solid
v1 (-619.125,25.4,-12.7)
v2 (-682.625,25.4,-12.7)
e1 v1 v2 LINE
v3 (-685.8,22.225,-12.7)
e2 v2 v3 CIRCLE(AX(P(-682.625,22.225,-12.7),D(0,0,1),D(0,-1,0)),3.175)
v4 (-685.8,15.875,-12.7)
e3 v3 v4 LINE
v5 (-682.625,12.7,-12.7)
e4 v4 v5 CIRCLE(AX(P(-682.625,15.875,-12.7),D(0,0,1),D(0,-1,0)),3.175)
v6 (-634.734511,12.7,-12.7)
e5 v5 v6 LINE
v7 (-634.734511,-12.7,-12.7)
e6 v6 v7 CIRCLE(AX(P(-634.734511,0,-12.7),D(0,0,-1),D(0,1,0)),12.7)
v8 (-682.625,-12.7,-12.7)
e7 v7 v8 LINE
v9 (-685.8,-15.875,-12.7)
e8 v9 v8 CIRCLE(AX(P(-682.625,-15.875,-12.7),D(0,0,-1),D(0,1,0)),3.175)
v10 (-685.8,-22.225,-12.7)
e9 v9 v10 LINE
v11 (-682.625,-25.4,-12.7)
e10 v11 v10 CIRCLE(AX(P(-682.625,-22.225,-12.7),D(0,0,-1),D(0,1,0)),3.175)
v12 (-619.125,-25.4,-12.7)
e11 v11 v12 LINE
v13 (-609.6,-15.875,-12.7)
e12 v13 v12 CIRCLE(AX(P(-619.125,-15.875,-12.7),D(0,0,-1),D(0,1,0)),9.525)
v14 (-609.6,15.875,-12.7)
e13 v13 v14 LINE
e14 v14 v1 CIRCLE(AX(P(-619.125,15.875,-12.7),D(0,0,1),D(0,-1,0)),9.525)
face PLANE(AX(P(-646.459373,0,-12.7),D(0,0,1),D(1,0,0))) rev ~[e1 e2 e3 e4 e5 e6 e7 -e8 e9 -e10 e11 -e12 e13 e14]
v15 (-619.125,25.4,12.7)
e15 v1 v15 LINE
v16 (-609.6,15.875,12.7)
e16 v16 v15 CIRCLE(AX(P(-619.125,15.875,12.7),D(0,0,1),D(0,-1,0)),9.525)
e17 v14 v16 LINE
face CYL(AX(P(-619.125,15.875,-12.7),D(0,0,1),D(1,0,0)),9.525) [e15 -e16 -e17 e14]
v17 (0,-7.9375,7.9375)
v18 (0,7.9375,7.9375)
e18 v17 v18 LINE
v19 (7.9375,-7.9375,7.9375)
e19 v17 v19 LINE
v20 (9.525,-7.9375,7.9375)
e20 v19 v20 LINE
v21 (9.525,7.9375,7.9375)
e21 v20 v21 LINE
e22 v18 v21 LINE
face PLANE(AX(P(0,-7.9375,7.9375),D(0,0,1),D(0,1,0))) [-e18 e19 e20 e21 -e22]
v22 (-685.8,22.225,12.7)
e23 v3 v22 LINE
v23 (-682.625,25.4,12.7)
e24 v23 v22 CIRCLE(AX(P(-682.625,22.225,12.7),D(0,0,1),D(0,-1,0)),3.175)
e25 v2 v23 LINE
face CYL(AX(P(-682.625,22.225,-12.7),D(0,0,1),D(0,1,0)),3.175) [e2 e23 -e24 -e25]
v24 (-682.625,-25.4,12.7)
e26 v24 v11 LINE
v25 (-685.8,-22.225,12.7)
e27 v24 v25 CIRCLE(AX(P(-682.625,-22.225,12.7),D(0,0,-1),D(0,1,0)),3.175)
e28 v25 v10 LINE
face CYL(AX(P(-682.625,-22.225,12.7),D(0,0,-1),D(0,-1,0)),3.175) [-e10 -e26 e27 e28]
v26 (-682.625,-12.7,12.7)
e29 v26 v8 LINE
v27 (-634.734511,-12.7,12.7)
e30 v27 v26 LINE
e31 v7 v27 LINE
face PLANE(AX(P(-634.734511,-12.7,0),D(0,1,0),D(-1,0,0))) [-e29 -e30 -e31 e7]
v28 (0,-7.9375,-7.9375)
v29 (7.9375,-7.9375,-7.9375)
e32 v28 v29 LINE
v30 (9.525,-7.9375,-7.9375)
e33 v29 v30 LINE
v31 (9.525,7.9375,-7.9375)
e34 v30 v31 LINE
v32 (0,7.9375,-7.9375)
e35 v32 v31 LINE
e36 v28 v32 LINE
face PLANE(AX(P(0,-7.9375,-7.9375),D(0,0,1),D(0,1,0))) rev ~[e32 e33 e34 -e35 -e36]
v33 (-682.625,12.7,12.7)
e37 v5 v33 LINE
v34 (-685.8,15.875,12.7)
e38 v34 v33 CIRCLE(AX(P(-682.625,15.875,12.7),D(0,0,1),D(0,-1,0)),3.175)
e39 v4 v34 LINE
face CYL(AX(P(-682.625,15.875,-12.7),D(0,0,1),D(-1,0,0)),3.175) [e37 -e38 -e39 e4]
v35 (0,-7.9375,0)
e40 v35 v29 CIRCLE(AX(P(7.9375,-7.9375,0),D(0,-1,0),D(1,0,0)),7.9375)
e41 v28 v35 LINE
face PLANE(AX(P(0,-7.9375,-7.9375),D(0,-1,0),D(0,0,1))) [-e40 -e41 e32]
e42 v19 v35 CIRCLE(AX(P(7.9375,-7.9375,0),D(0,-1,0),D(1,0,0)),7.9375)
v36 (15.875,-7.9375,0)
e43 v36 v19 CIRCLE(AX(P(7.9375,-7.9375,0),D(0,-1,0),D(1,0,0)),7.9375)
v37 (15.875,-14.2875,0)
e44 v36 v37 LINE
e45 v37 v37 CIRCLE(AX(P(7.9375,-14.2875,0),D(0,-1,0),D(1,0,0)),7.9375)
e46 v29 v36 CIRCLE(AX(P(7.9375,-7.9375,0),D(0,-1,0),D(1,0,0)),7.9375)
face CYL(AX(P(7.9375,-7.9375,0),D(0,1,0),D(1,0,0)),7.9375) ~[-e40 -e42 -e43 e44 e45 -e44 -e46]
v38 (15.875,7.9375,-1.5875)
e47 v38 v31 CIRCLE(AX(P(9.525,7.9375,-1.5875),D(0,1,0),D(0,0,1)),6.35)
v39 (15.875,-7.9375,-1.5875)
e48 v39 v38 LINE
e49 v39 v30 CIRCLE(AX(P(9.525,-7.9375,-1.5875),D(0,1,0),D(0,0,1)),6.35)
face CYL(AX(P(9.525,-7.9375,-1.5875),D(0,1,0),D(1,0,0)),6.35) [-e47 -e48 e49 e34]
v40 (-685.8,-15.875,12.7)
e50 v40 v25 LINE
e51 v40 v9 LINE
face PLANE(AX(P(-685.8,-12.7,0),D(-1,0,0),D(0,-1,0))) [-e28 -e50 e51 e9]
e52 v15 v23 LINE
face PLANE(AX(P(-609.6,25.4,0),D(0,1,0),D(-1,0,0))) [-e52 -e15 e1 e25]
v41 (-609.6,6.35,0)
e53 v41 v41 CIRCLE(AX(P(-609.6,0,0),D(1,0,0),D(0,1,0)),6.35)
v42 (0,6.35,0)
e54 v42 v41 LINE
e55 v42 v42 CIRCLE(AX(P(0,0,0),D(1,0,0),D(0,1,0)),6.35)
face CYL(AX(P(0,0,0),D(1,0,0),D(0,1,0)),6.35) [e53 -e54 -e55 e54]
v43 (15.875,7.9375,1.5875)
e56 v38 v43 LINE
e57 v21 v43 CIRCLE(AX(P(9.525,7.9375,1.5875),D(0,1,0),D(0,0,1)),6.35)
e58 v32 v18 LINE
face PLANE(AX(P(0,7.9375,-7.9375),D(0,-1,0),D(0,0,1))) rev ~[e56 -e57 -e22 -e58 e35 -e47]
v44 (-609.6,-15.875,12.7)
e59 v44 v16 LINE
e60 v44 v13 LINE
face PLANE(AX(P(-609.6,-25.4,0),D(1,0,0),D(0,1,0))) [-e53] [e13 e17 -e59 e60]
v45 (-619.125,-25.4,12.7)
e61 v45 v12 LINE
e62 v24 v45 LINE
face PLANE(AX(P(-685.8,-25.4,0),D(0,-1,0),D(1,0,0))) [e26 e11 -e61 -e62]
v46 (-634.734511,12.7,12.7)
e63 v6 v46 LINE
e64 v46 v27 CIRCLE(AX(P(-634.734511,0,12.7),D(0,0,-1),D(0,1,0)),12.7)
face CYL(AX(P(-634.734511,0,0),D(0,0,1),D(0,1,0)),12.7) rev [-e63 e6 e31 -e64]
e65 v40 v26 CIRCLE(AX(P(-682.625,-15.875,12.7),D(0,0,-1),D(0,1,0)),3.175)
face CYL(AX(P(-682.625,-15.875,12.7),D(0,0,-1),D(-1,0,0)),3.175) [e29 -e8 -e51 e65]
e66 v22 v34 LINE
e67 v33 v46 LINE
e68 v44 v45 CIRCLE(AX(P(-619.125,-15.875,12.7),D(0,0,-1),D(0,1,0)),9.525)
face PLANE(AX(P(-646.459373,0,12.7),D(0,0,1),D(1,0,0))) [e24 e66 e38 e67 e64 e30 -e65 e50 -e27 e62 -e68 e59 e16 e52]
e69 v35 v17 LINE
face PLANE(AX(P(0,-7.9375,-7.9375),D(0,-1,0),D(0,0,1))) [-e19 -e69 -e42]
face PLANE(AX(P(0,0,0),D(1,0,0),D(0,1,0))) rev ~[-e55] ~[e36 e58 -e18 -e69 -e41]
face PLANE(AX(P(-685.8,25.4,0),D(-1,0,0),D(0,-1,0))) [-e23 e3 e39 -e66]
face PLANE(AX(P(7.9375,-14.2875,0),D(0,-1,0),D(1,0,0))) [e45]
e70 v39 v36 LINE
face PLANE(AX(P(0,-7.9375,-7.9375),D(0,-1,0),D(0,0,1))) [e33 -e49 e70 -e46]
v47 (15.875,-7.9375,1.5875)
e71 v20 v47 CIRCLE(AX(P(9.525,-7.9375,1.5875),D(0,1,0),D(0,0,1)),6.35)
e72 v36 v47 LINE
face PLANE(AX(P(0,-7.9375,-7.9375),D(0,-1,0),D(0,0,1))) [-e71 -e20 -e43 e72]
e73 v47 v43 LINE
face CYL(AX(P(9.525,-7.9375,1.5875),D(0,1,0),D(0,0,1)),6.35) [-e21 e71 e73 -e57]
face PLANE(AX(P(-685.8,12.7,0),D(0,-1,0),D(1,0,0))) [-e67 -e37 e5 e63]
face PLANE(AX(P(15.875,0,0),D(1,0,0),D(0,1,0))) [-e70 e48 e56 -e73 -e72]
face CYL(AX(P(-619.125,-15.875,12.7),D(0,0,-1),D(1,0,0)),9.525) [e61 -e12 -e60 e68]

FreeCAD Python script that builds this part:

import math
import FreeCAD as App
import Part
import Sketcher
Q = App.Units.Quantity


def edges_at(feature, points):
    """Names of the edges that pass closest to the given points."""
    edges = feature.Shape.Edges
    near = lambda p: min(range(len(edges)), key=lambda i: edges[i].distToShape(Part.Vertex(*p))[0])
    return sorted({f"Edge{near(p) + 1}" for p in points})


def add_polygon(sketch, points):
    """Adds a closed chain of lines whose ends are joined by coincident constraints."""
    first, n = sketch.GeometryCount, len(points)
    for a, b in zip(points, points[1:] + points[:1]):
        sketch.addGeometry(Part.LineSegment(App.Vector(*a, 0), App.Vector(*b, 0)), False)
    for i in range(n):
        sketch.addConstraint(Sketcher.Constraint("Coincident", first + i, 2, first + (i + 1) % n, 1))

doc = App.newDocument("Part")
body = doc.addObject("PartDesign::Body", "Body")

sketch1 = doc.addObject("Sketcher::SketchObject", "Sketch")
body.addObject(sketch1)
sketch1.AttachmentSupport = (doc.YZ_Plane, [""])
sketch1.MapMode = "FlatFace"
sketch1.addGeometry(Part.Circle(App.Vector(0, 0, 0), App.Vector(0, 0, 1), 6), False)
sketch1.addConstraint([
    Sketcher.Constraint("Coincident", 0, 3, -1, 1),
    Sketcher.Constraint("Diameter", 0, Q("0.5 in")),
])
pad1 = doc.addObject("PartDesign::Pad", "Pad")
body.addObject(pad1)
pad1.Profile = sketch1
pad1.Length = Q("24 in")
pad1.Reversed = True

sketch2 = doc.addObject("Sketcher::SketchObject", "Sketch001")
body.addObject(sketch2)
sketch2.AttachmentSupport = (doc.YZ_Plane, [""])
sketch2.MapMode = "FlatFace"
add_polygon(sketch2, [(-8, 8), (-8, -8), (8, -8), (8, 8)])
sketch2.addConstraint([
    Sketcher.Constraint("Vertical", 0),
    Sketcher.Constraint("Horizontal", 1),
    Sketcher.Constraint("Vertical", 2),
    Sketcher.Constraint("Horizontal", 3),
    Sketcher.Constraint("Symmetric", 0, 2, 2, 2, -1, 1),
    Sketcher.Constraint("Equal", 3, 0),
    Sketcher.Constraint("DistanceX", 1, 1, 1, 2, Q("0.625 in")),
])
pad2 = doc.addObject("PartDesign::Pad", "Pad001")
body.addObject(pad2)
pad2.Profile = sketch2
pad2.Length = Q("0.625 in")

sketch3 = doc.addObject("Sketcher::SketchObject", "Sketch002")
body.addObject(sketch3)
sketch3.AttachmentSupport = (doc.XZ_Plane, [""])
sketch3.MapMode = "FlatFace"
sketch3.AttachmentOffset = App.Placement(App.Vector(0, 0, 0.3125 * 25.4), App.Rotation())
sketch3.addGeometry(Part.Circle(App.Vector(8, 0, 0), App.Vector(0, 0, 1), 8), False)
sketch3.addConstraint([
    Sketcher.Constraint("PointOnObject", 0, 3, -1),
    Sketcher.Constraint("Diameter", 0, Q("0.625 in")),
    Sketcher.Constraint("DistanceX", -1, 1, 0, 3, Q("0.3125 in")),
])
pad3 = doc.addObject("PartDesign::Pad", "Pad002")
body.addObject(pad3)
pad3.Profile = sketch3
pad3.Length = Q("0.25 in")
doc.recompute()

fillet = doc.addObject("PartDesign::Fillet", "Fillet")
body.addObject(fillet)
fillet.Base = (pad3, edges_at(pad3, [(15.875, 0, 7.938), (15.875, 0, -7.938)]))
fillet.Radius = Q("0.25 in")

sketch4 = doc.addObject("Sketcher::SketchObject", "Sketch003")
body.addObject(sketch4)
sketch4.AttachmentSupport = (doc.XY_Plane, [""])
sketch4.MapMode = "FlatFace"
sketch4.addGeometry([
    Part.LineSegment(App.Vector(-610, -25, 0), App.Vector(-610, 25, 0)),
    Part.LineSegment(App.Vector(-610, 25, 0), App.Vector(-686, 25, 0)),
    Part.LineSegment(App.Vector(-686, 25, 0), App.Vector(-686, 13, 0)),
    Part.LineSegment(App.Vector(-686, 13, 0), App.Vector(-635, 13, 0)),
    Part.ArcOfCircle(Part.Circle(App.Vector(-635, 0, 0), App.Vector(0, 0, 1), 13), math.radians(-90), math.radians(90)),
    Part.LineSegment(App.Vector(-635, -13, 0), App.Vector(-686, -13, 0)),
    Part.LineSegment(App.Vector(-686, -13, 0), App.Vector(-686, -25, 0)),
    Part.LineSegment(App.Vector(-686, -25, 0), App.Vector(-610, -25, 0)),
], False)
sketch4.addConstraint([
    Sketcher.Constraint("Coincident", 0, 2, 1, 1),
    Sketcher.Constraint("Coincident", 1, 2, 2, 1),
    Sketcher.Constraint("Coincident", 2, 2, 3, 1),
    Sketcher.Constraint("Tangent", 3, 2, 4, 2),
    Sketcher.Constraint("Tangent", 4, 1, 5, 1),
    Sketcher.Constraint("Coincident", 5, 2, 6, 1),
    Sketcher.Constraint("Coincident", 6, 2, 7, 1),
    Sketcher.Constraint("Coincident", 7, 2, 0, 1),
    Sketcher.Constraint("Vertical", 0),
    Sketcher.Constraint("Horizontal", 1),
    Sketcher.Constraint("Vertical", 2),
    Sketcher.Constraint("Horizontal", 3),
    Sketcher.Constraint("Horizontal", 5),
    Sketcher.Constraint("Vertical", 6),
    Sketcher.Constraint("Horizontal", 7),
    Sketcher.Constraint("Symmetric", 2, 2, 5, 2, -1),
    Sketcher.Constraint("Equal", 2, 6),
    Sketcher.Constraint("Radius", 4, Q("0.5 in")),
    Sketcher.Constraint("DistanceX", 1, 2, 1, 1, Q("3 in")),
    Sketcher.Constraint("DistanceY", 0, 1, 0, 2, Q("2 in")),
    Sketcher.Constraint("DistanceX", 0, 2, -1, 1, Q("24 in")),
    Sketcher.Constraint("DistanceX", 3, 1, 3, 2, 51.065489),
])
pad4 = doc.addObject("PartDesign::Pad", "Pad003")
body.addObject(pad4)
pad4.Profile = sketch4
pad4.Length = Q("1 in")
pad4.Midplane = True
doc.recompute()

fillet2 = doc.addObject("PartDesign::Fillet", "Fillet001")
body.addObject(fillet2)
fillet2.Base = (pad4, edges_at(pad4, [(-609.6, 25.4, 0), (-609.6, -25.4, 0)]))
fillet2.Radius = Q("0.375 in")
doc.recompute()

fillet3 = doc.addObject("PartDesign::Fillet", "Fillet002")
body.addObject(fillet3)
fillet3.Base = (fillet2, edges_at(fillet2, [
    (-685.8, 25.4, 0),
    (-685.8, -25.4, 0),
    (-685.8, 12.7, 0),
    (-685.8, -12.7, 0),
]))
fillet3.Radius = Q("0.125 in")

doc.recompute()
